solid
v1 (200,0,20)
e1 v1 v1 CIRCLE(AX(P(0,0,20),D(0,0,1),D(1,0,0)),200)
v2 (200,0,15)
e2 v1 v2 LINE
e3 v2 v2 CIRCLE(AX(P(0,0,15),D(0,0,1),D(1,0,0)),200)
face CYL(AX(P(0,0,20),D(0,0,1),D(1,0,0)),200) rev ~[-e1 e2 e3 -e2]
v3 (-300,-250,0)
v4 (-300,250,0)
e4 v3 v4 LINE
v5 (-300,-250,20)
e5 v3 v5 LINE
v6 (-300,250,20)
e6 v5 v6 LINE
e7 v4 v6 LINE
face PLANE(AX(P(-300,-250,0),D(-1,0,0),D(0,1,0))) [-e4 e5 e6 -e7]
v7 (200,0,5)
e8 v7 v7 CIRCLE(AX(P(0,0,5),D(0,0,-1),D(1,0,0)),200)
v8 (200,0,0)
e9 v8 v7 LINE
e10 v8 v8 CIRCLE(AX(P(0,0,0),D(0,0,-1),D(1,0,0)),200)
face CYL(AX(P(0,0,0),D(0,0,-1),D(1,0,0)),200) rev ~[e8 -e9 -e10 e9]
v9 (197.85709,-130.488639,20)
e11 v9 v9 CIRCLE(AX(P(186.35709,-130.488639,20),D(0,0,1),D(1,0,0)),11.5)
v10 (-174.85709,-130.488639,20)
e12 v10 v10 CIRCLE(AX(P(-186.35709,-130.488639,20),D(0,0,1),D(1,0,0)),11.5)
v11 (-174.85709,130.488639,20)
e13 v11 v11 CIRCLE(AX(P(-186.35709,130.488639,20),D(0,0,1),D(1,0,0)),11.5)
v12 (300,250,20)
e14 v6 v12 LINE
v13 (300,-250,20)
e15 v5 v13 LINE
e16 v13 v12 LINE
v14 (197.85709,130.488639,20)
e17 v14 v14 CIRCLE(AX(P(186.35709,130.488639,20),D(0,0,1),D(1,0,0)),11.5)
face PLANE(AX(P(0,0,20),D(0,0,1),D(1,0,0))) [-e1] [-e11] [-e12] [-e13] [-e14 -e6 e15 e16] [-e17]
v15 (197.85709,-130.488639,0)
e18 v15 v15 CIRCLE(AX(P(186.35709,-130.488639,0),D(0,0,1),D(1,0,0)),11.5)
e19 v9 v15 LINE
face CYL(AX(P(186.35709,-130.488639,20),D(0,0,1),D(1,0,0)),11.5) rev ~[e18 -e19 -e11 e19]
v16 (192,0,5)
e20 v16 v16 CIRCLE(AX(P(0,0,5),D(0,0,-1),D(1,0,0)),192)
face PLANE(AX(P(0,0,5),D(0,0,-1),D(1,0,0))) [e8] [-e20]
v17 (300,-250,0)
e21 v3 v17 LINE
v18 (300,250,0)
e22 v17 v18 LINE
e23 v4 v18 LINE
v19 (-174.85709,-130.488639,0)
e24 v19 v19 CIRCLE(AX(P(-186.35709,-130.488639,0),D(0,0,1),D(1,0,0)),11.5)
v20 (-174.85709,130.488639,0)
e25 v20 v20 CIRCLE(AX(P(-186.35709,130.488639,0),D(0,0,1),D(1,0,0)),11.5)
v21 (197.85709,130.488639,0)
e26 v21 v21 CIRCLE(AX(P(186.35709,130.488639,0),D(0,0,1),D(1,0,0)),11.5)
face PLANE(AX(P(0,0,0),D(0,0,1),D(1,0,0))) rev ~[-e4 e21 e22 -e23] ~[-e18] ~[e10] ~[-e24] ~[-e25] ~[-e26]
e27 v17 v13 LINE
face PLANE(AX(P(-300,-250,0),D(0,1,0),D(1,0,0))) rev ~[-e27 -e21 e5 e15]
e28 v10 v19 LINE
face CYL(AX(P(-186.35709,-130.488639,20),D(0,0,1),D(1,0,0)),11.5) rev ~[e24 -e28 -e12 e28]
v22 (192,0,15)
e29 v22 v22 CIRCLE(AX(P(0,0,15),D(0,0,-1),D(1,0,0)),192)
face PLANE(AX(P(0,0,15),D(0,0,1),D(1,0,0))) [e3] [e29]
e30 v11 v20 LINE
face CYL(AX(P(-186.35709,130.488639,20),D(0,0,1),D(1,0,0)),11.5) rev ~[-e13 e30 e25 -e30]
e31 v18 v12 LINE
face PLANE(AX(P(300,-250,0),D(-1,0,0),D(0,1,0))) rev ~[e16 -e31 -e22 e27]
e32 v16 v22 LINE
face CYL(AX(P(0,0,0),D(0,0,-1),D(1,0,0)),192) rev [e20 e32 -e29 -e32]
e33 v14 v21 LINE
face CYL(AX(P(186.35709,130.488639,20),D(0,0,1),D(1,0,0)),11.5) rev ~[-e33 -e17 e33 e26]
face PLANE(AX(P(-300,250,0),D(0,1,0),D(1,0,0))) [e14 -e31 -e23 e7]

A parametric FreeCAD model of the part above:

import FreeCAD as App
import Part
import Sketcher
Q = App.Units.Quantity


def add_polygon(sketch, points):
    """Adds a closed chain of lines whose ends are joined by coincident constraints."""
    first, n = sketch.GeometryCount, len(points)
    for a, b in zip(points, points[1:] + points[:1]):
        sketch.addGeometry(Part.LineSegment(App.Vector(*a, 0), App.Vector(*b, 0)), False)
    for i in range(n):
        sketch.addConstraint(Sketcher.Constraint("Coincident", first + i, 2, first + (i + 1) % n, 1))

doc = App.newDocument("Part")
params = doc.addObject("Spreadsheet::Sheet", "Params")
for row, (alias, value) in enumerate([
    ("sketch1_diameter", "384 mm"),
    ("sketch1_width", "600 mm"),
    ("sketch1_height", "500 mm"),
    ("pad1_length", "20 mm"),
    ("sketch2_diameter", "23 mm"),
    ("sketch3_diameter", "400 mm"),
    ("pocket2_length", "5 mm"),
    ("sketch4_diameter", "400 mm"),
    ("pocket3_length", "5 mm"),
], start=1):
    params.set(f"A{row}", alias)
    params.set(f"B{row}", "=" + value)
    params.setAlias(f"B{row}", alias)

body = doc.addObject("PartDesign::Body", "Body")

# Sketch on XY plane
sketch1 = body.newObject("Sketcher::SketchObject", "Sketch")
sketch1.AttachmentSupport = (doc.getObject("XY_Plane"), [""])
sketch1.MapMode = "FlatFace"
add_polygon(sketch1, [(-300, 250), (-300, -250), (300, -250), (300, 250)])  # lines 0-3
sketch1.addGeometry(Part.Circle(App.Vector(0, 0, 0), App.Vector(0, 0, 1), 192), False)  # 4
sketch1.addConstraint([
    Sketcher.Constraint("Vertical", 0),
    Sketcher.Constraint("Horizontal", 1),
    Sketcher.Constraint("Vertical", 2),
    Sketcher.Constraint("Horizontal", 3),
    Sketcher.Constraint("Coincident", 4, 3, -1, 1),
    Sketcher.Constraint("Symmetric", 0, 2, 2, 2, -1, 1),
    Sketcher.Constraint("Diameter", 4, Q("384 mm")),
    Sketcher.Constraint("DistanceX", 1, 1, 1, 2, Q("600 mm")),
    Sketcher.Constraint("DistanceY", 0, 2, 0, 1, Q("500 mm")),
])
sketch1.setExpression("Constraints[10]", "Params.sketch1_diameter")
sketch1.setExpression("Constraints[11]", "Params.sketch1_width")
sketch1.setExpression("Constraints[12]", "Params.sketch1_height")
pad1 = body.newObject("PartDesign::Pad", "Pad")
pad1.Profile = sketch1
pad1.setExpression("Length", "Params.pad1_length")

# Sketch on XY plane
sketch2 = body.newObject("Sketcher::SketchObject", "Sketch001")
sketch2.AttachmentSupport = (doc.getObject("XY_Plane"), [""])
sketch2.MapMode = "FlatFace"
sketch2.AttachmentOffset = App.Placement(App.Vector(0, 0, 20), App.Rotation())
sketch2.addGeometry([
    Part.Circle(App.Vector(186, 130, 0), App.Vector(0, 0, 1), 12),
    Part.Circle(App.Vector(-186, 130, 0), App.Vector(0, 0, 1), 12),
    Part.Circle(App.Vector(-186, -130, 0), App.Vector(0, 0, 1), 12),
    Part.Circle(App.Vector(186, -130, 0), App.Vector(0, 0, 1), 12),
], False)
sketch2.addConstraint([
    Sketcher.Constraint("Equal", 0, 1),
    Sketcher.Constraint("Equal", 1, 2),
    Sketcher.Constraint("Equal", 2, 3),
    Sketcher.Constraint("Symmetric", 0, 3, 2, 3, -1, 1),
    Sketcher.Constraint("Symmetric", 1, 3, 3, 3, -1, 1),
    Sketcher.Constraint("Symmetric", 0, 3, 1, 3, -2),
    Sketcher.Constraint("Diameter", 0, Q("23 mm")),
    Sketcher.Constraint("DistanceX", -1, 1, 0, 3, Q("186.35709 mm")),
    Sketcher.Constraint("DistanceY", -1, 1, 0, 3, Q("130.488639 mm")),
])
sketch2.setExpression("Constraints[6]", "Params.sketch2_diameter")
pocket1 = body.newObject("PartDesign::Pocket", "Pocket")
pocket1.Profile = sketch2
pocket1.Type = "ThroughAll"

# Sketch on XY plane
sketch3 = body.newObject("Sketcher::SketchObject", "Sketch002")
sketch3.AttachmentSupport = (doc.getObject("XY_Plane"), [""])
sketch3.MapMode = "FlatFace"
sketch3.addGeometry(Part.Circle(App.Vector(0, 0, 0), App.Vector(0, 0, 1), 200), False)
sketch3.addConstraint([
    Sketcher.Constraint("Coincident", 0, 3, -1, 1),
    Sketcher.Constraint("Diameter", 0, Q("400 mm")),
])
sketch3.setExpression("Constraints[1]", "Params.sketch3_diameter")
pocket2 = body.newObject("PartDesign::Pocket", "Pocket001")
pocket2.Profile = sketch3
pocket2.setExpression("Length", "Params.pocket2_length")
pocket2.Reversed = True

# Sketch on XY plane
sketch4 = body.newObject("Sketcher::SketchObject", "Sketch003")
sketch4.AttachmentSupport = (doc.getObject("XY_Plane"), [""])
sketch4.MapMode = "FlatFace"
sketch4.AttachmentOffset = App.Placement(App.Vector(0, 0, 20), App.Rotation())
sketch4.addGeometry(Part.Circle(App.Vector(0, 0, 0), App.Vector(0, 0, 1), 200), False)
sketch4.addConstraint([
    Sketcher.Constraint("Coincident", 0, 3, -1, 1),
    Sketcher.Constraint("Diameter", 0, Q("400 mm")),
])
sketch4.setExpression("Constraints[1]", "Params.sketch4_diameter")
pocket3 = body.newObject("PartDesign::Pocket", "Pocket002")
pocket3.Profile = sketch4
pocket3.setExpression("Length", "Params.pocket3_length")

doc.recompute()
